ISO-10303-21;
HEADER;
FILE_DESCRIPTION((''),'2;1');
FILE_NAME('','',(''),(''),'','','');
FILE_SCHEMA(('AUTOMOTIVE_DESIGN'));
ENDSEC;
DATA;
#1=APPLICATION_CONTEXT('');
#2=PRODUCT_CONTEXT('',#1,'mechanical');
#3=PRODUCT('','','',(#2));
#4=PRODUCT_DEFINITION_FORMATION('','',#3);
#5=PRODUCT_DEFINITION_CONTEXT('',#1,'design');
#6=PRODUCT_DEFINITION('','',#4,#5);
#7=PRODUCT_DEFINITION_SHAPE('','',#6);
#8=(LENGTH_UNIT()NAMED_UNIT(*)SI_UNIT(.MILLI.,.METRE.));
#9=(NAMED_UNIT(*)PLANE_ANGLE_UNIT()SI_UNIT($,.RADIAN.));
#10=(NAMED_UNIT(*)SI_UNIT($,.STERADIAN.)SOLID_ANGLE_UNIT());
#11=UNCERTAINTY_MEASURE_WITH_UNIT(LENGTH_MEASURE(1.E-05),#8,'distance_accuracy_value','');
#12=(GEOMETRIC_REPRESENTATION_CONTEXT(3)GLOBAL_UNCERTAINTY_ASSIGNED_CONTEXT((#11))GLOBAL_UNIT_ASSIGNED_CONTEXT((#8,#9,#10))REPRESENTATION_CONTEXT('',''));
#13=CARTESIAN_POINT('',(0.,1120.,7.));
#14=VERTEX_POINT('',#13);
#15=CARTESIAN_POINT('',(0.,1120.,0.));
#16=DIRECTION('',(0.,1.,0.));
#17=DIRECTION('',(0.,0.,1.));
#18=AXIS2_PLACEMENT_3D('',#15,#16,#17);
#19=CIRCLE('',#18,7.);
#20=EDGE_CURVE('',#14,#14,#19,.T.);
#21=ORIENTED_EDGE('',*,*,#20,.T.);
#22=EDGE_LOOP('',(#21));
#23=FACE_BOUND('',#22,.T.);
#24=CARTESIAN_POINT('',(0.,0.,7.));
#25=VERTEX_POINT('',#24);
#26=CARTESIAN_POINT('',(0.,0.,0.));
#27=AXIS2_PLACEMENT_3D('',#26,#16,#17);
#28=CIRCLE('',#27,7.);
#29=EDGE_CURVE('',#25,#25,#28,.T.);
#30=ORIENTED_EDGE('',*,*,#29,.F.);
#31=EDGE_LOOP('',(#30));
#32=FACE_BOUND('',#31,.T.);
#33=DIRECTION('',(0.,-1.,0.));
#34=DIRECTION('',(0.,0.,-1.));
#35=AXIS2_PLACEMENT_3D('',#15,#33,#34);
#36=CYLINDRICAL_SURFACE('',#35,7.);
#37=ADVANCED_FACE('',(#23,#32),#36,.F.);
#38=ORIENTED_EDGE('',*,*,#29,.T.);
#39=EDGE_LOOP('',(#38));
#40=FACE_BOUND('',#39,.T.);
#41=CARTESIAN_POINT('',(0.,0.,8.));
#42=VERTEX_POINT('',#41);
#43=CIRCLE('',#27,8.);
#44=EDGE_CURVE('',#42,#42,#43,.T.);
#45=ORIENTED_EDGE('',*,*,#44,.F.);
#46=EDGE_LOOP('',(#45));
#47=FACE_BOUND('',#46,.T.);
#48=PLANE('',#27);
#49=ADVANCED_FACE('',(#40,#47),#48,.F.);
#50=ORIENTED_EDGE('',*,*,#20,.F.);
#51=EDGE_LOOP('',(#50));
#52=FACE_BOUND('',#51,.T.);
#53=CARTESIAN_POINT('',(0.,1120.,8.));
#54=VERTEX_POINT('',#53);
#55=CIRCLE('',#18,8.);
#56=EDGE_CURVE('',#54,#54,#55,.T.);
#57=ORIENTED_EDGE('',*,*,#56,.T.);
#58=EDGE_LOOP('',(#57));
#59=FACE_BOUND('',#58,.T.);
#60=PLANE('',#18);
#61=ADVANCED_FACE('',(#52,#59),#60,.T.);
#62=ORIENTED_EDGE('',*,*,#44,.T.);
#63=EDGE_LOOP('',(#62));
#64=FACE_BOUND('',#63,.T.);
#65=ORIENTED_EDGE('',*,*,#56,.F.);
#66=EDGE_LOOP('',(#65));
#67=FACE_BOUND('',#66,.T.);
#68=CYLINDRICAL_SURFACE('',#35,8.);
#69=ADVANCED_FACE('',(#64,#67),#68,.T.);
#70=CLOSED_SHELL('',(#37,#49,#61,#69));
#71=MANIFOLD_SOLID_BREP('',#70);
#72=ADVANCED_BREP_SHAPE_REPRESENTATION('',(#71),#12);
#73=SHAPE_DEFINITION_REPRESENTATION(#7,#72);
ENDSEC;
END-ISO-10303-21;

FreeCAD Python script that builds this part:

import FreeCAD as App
import Part
import Sketcher

V = App.Vector

doc = App.newDocument("Part")
body = doc.addObject("PartDesign::Body", "Body")

# Sketch on XZ plane
sketch1 = body.newObject("Sketcher::SketchObject", "Sketch")
sketch1.AttachmentSupport = (doc.getObject("XZ_Plane"), [""])
sketch1.MapMode = "FlatFace"
sketch1.addGeometry([
    Part.Circle(V(0, 0, 0), V(0, 0, 1), 8),
    Part.Circle(V(0, 0, 0), V(0, 0, 1), 7),
], False)
sketch1.addConstraint([
    Sketcher.Constraint("Coincident", 0, 3, -1, 1),
    Sketcher.Constraint("Coincident", 1, 3, -1, 1),
    Sketcher.Constraint("Diameter", 0, 16.0),
    Sketcher.Constraint("Diameter", 1, 14.0),
])
pad1 = body.newObject("PartDesign::Pad", "Pad")
pad1.Profile = sketch1
pad1.Length = 1120
pad1.Reversed = True

doc.recompute()
